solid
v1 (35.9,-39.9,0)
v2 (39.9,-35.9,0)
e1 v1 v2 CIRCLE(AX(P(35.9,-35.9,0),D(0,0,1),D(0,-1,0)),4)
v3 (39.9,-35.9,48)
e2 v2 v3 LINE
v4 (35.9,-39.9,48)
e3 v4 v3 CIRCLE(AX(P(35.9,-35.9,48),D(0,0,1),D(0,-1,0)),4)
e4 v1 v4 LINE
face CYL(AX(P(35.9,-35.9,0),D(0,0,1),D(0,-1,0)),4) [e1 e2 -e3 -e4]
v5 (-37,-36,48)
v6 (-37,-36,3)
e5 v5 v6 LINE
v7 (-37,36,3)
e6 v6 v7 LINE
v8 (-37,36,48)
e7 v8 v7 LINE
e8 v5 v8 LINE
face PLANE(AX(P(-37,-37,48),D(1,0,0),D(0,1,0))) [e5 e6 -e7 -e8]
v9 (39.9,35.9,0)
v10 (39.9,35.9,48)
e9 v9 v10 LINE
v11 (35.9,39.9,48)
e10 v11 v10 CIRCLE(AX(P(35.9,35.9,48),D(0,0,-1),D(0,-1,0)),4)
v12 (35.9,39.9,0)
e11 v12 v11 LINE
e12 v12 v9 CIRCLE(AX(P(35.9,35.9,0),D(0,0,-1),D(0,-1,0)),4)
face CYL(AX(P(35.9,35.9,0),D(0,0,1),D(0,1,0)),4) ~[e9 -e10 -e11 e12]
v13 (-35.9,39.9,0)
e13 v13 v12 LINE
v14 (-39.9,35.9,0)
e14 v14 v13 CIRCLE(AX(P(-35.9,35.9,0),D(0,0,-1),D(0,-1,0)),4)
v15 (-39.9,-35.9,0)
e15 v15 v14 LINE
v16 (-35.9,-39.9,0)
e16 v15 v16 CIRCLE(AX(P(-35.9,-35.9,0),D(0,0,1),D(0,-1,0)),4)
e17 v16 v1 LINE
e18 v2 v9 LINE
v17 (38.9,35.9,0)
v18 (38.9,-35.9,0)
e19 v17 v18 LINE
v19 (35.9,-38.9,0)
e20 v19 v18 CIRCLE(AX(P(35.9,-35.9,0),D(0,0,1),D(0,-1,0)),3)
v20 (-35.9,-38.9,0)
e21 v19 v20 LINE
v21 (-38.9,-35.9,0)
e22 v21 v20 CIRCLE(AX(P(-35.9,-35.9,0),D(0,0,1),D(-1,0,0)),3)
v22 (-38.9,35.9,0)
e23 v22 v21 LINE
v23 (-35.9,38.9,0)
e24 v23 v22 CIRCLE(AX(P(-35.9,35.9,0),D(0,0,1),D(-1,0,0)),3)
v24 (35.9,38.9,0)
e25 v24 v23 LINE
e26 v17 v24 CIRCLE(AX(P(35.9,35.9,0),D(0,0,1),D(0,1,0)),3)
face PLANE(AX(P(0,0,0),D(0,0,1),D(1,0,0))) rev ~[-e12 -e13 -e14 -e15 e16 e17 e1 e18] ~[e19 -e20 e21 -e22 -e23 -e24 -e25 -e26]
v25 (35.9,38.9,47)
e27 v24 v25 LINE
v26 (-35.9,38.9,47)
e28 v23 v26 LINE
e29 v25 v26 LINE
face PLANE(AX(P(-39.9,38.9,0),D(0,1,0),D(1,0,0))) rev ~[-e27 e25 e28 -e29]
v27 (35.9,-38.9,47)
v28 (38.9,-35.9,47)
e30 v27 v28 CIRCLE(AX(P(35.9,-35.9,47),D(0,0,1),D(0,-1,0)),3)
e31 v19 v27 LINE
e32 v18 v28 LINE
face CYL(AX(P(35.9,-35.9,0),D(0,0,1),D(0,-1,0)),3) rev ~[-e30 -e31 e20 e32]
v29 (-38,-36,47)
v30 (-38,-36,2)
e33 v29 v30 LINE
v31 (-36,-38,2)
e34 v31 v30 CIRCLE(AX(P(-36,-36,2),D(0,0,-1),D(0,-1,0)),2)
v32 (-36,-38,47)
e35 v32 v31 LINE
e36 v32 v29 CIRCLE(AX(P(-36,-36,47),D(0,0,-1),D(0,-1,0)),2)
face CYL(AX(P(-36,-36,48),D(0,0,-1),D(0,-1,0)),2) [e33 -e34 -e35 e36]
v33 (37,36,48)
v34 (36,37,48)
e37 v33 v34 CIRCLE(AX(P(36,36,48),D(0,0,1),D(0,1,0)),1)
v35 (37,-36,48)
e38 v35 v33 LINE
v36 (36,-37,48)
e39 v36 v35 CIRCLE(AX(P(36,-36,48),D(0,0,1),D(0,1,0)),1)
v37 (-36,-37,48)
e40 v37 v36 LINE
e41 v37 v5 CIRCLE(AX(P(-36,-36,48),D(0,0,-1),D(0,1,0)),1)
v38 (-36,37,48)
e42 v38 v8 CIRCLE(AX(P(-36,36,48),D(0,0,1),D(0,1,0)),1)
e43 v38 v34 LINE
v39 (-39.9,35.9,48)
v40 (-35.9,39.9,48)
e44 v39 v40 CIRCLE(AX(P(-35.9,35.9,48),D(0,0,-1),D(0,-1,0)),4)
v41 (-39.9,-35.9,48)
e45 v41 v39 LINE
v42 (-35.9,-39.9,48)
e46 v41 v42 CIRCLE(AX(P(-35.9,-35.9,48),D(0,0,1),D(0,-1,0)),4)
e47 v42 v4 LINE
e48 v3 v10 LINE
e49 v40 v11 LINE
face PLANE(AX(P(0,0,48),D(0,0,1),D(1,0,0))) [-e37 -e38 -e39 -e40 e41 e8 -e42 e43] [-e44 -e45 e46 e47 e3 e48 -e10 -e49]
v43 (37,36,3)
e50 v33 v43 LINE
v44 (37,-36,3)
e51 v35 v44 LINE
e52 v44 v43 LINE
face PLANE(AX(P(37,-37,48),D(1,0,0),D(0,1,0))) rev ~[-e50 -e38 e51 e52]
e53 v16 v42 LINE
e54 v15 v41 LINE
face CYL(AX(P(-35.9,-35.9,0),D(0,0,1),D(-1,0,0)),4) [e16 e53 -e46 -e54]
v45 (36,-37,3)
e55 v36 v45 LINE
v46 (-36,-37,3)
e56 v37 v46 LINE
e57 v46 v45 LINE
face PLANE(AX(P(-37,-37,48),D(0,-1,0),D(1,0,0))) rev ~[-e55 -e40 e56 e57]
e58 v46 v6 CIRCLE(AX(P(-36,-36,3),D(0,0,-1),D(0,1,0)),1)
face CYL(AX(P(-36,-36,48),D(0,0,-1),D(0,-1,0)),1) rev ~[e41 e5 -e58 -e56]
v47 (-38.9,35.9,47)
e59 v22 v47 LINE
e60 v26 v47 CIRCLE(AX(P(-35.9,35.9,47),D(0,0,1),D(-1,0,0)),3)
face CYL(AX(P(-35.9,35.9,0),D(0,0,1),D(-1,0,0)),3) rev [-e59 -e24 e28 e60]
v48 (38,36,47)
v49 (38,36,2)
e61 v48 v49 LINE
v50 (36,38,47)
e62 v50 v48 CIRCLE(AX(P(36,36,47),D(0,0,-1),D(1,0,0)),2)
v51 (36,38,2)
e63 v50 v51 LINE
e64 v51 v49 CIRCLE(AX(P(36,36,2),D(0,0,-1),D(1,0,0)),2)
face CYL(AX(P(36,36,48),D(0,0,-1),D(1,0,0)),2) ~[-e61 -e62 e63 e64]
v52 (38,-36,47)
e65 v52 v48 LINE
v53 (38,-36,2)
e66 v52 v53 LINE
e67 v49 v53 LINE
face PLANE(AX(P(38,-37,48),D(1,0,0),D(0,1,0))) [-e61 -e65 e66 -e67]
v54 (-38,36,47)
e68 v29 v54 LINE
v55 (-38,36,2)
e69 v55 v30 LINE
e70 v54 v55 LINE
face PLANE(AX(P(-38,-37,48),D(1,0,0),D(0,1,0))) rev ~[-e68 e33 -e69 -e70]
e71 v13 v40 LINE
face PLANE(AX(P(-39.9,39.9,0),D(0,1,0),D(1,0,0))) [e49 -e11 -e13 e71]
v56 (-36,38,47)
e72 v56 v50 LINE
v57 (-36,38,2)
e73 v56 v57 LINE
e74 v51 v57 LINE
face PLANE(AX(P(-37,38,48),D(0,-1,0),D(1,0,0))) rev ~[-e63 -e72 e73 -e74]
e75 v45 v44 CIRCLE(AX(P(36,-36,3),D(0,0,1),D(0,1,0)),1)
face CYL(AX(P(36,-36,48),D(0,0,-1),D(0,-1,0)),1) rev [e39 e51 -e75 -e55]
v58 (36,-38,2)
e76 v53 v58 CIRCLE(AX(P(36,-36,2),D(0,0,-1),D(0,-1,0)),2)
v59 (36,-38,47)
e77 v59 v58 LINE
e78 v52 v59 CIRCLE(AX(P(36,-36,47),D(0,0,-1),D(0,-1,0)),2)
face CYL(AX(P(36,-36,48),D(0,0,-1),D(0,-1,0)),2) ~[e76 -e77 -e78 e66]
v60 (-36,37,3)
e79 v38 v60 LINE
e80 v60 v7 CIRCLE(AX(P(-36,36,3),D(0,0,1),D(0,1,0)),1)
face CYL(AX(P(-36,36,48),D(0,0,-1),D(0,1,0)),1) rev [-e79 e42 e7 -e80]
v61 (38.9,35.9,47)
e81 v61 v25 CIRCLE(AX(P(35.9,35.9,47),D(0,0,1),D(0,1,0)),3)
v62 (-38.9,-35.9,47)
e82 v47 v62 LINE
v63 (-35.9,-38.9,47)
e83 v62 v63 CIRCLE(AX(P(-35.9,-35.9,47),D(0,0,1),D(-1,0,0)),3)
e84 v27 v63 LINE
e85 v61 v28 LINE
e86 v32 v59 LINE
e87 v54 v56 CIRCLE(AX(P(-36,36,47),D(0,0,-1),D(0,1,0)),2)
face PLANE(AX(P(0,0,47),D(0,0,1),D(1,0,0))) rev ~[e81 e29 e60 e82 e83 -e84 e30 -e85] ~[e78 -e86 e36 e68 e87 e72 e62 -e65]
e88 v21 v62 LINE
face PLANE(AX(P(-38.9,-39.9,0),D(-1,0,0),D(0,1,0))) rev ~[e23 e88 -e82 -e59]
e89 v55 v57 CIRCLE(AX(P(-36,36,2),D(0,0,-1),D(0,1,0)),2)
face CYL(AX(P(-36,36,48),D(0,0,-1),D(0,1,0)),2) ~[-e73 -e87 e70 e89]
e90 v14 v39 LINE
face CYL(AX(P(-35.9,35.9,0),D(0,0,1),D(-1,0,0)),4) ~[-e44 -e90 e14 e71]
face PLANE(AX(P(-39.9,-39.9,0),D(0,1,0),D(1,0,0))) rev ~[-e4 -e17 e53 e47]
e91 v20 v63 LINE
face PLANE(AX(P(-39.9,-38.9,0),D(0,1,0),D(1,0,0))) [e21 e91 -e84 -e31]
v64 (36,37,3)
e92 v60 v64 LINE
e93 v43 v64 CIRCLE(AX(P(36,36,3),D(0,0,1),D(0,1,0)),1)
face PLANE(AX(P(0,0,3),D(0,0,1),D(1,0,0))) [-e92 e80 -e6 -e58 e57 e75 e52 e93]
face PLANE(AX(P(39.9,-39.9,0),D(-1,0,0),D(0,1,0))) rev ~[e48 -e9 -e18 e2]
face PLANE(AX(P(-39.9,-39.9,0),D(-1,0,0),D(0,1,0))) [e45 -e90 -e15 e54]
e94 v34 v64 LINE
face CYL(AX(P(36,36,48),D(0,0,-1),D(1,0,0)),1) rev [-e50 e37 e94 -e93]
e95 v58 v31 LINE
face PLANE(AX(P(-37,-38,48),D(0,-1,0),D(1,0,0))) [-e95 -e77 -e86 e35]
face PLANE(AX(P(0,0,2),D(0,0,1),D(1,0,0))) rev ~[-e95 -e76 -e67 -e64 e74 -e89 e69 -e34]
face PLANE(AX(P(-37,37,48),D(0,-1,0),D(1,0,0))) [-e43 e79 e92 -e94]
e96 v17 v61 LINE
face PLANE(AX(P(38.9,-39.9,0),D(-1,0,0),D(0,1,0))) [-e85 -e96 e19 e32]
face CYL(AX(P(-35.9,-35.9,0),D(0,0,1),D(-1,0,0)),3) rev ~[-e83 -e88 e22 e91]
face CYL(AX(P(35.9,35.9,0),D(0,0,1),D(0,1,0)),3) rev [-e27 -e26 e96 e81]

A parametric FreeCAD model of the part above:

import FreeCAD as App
import Part
import Sketcher

V = App.Vector
Q = App.Units.Quantity


def edges_at(feature, points):
    """Names of the edges that pass closest to the given points."""
    edges = feature.Shape.Edges
    near = lambda p: min(range(len(edges)), key=lambda i: edges[i].distToShape(Part.Vertex(*p))[0])
    return sorted({f"Edge{near(p) + 1}" for p in points})


def faces_at(feature, points):
    """Names of the faces that lie closest to the given points."""
    faces = feature.Shape.Faces
    near = lambda p: min(range(len(faces)), key=lambda i: faces[i].distToShape(Part.Vertex(*p))[0])
    return sorted({f"Face{near(p) + 1}" for p in points})


def add_polygon(sketch, points):
    """Adds a closed chain of lines whose ends are joined by coincident constraints."""
    first, n = sketch.GeometryCount, len(points)
    for a, b in zip(points, points[1:] + points[:1]):
        sketch.addGeometry(Part.LineSegment(App.Vector(*a, 0), App.Vector(*b, 0)), False)
    for i in range(n):
        sketch.addConstraint(Sketcher.Constraint("Coincident", first + i, 2, first + (i + 1) % n, 1))

doc = App.newDocument("Part")
params = doc.addObject("Spreadsheet::Sheet", "Params")
for row, (alias, value) in enumerate([
    ("sketch1_width", "79.8 mm"),
    ("pad1_length", "48 mm"),
    ("sketch2_width", "74 mm"),
    ("pocket1_length", "45 mm"),
    ("fillet_radius", "4 mm"),
    ("fillet2_radius", "1 mm"),
    ("thickness_wall", "1 mm"),
], start=1):
    params.set(f"A{row}", alias)
    params.set(f"B{row}", "=" + value)
    params.setAlias(f"B{row}", alias)

body = doc.addObject("PartDesign::Body", "Body")

sketch1 = doc.addObject("Sketcher::SketchObject", "Sketch")
body.addObject(sketch1)
sketch1.AttachmentSupport = (doc.XY_Plane, [""])
sketch1.MapMode = "FlatFace"
add_polygon(sketch1, [(-40, 40), (-40, -40), (40, -40), (40, 40)])
sketch1.addConstraint(Sketcher.Constraint("Vertical", 0))
sketch1.addConstraint(Sketcher.Constraint("Horizontal", 1))
sketch1.addConstraint(Sketcher.Constraint("Vertical", 2))
sketch1.addConstraint(Sketcher.Constraint("Horizontal", 3))
sketch1.addConstraint(Sketcher.Constraint("Symmetric", 0, 2, 2, 2, -1, 1))
sketch1.addConstraint(Sketcher.Constraint("Equal", 3, 0))
sketch1.addConstraint(Sketcher.Constraint("DistanceX", 1, 1, 1, 2, Q("79.8 mm")))
sketch1.setExpression("Constraints[10]", "Params.sketch1_width")
pad1 = doc.addObject("PartDesign::Pad", "Pad")
body.addObject(pad1)
pad1.Profile = sketch1
pad1.setExpression("Length", "Params.pad1_length")

sketch2 = doc.addObject("Sketcher::SketchObject", "Sketch001")
body.addObject(sketch2)
sketch2.AttachmentSupport = (doc.XY_Plane, [""])
sketch2.MapMode = "FlatFace"
sketch2.AttachmentOffset = App.Placement(V(0, 0, 48), App.Rotation())
add_polygon(sketch2, [(-37, 37), (-37, -37), (37, -37), (37, 37)])
sketch2.addConstraint(Sketcher.Constraint("Vertical", 0))
sketch2.addConstraint(Sketcher.Constraint("Horizontal", 1))
sketch2.addConstraint(Sketcher.Constraint("Vertical", 2))
sketch2.addConstraint(Sketcher.Constraint("Horizontal", 3))
sketch2.addConstraint(Sketcher.Constraint("Symmetric", 0, 2, 2, 2, -1, 1))
sketch2.addConstraint(Sketcher.Constraint("Equal", 3, 0))
sketch2.addConstraint(Sketcher.Constraint("DistanceX", 1, 1, 1, 2, Q("74 mm")))
sketch2.setExpression("Constraints[10]", "Params.sketch2_width")
pocket1 = doc.addObject("PartDesign::Pocket", "Pocket")
body.addObject(pocket1)
pocket1.Profile = sketch2
pocket1.setExpression("Length", "Params.pocket1_length")
doc.recompute()

fillet = doc.addObject("PartDesign::Fillet", "Fillet")
body.addObject(fillet)
fillet.Base = (pocket1, edges_at(pocket1, [
    (-39.9, -39.9, 24),
    (39.9, -39.9, 24),
    (39.9, 39.9, 24),
    (-39.9, 39.9, 24),
]))
fillet.setExpression("Radius", "Params.fillet_radius")
doc.recompute()

fillet2 = doc.addObject("PartDesign::Fillet", "Fillet001")
body.addObject(fillet2)
fillet2.Base = (fillet, edges_at(fillet, [
    (-37, -37, 25.5),
    (-37, 37, 25.5),
    (37, 37, 25.5),
    (37, -37, 25.5),
]))
fillet2.setExpression("Radius", "Params.fillet2_radius")
doc.recompute()

thickness = doc.addObject("PartDesign::Thickness", "Thickness")
body.addObject(thickness)
thickness.Base = (fillet2, faces_at(fillet2, [(0, 0, 0)]))
thickness.setExpression("Value", "Params.thickness_wall")
thickness.Reversed = True
thickness.Join = "Intersection"

doc.recompute()
